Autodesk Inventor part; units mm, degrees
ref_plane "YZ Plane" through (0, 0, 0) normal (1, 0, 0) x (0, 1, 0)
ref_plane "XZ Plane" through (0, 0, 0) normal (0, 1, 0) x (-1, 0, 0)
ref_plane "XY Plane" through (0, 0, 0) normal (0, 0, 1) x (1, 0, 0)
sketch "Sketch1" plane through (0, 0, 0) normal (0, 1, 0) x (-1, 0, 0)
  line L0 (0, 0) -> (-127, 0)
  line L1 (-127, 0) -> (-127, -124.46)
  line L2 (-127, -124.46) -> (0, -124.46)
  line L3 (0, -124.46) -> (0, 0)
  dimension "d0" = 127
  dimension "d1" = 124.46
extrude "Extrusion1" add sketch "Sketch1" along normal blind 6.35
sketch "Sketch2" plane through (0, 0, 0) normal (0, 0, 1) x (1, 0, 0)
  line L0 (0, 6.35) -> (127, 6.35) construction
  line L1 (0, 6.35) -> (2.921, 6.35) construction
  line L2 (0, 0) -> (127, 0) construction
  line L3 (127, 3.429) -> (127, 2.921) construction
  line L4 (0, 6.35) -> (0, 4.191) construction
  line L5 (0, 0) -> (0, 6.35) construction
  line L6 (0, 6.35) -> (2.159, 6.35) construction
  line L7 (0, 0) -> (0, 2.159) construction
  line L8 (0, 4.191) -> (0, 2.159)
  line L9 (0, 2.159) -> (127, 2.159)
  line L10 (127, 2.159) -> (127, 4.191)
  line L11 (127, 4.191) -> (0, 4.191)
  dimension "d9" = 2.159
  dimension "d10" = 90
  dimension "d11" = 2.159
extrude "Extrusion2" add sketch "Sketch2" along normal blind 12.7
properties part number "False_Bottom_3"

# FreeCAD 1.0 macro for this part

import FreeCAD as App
import Part
import Sketcher
Q = App.Units.Quantity

doc = App.newDocument("Part")
body = doc.addObject("PartDesign::Body", "Body")

# Sketch on XZ plane
sketch1 = body.newObject("Sketcher::SketchObject", "Sketch")
sketch1.AttachmentSupport = (doc.getObject("XZ_Plane"), [""])
sketch1.MapMode = "FlatFace"
sketch1.addGeometry(Part.LineSegment(App.Vector(0, -124, 0), App.Vector(0, 0, 0)), False)
sketch1.addGeometry(Part.LineSegment(App.Vector(0, 0, 0), App.Vector(127, 0, 0)), False)
sketch1.addGeometry(Part.LineSegment(App.Vector(127, 0, 0), App.Vector(127, -124, 0)), False)
sketch1.addGeometry(Part.LineSegment(App.Vector(127, -124, 0), App.Vector(0, -124, 0)), False)
sketch1.addConstraint(Sketcher.Constraint("Coincident", 0, 2, 1, 1))
sketch1.addConstraint(Sketcher.Constraint("Coincident", 1, 2, 2, 1))
sketch1.addConstraint(Sketcher.Constraint("Coincident", 2, 2, 3, 1))
sketch1.addConstraint(Sketcher.Constraint("Coincident", 3, 2, 0, 1))
sketch1.addConstraint(Sketcher.Constraint("Vertical", 0))
sketch1.addConstraint(Sketcher.Constraint("Horizontal", 1))
sketch1.addConstraint(Sketcher.Constraint("Vertical", 2))
sketch1.addConstraint(Sketcher.Constraint("Horizontal", 3))
sketch1.addConstraint(Sketcher.Constraint("Coincident", 0, 2, -1, 1))
sketch1.addConstraint(Sketcher.Constraint("DistanceX", 1, 1, 1, 2, Q("5 in")))
sketch1.addConstraint(Sketcher.Constraint("DistanceY", 0, 1, 0, 2, Q("4.9 in")))
pad1 = body.newObject("PartDesign::Pad", "Pad")
pad1.Profile = sketch1
pad1.Length = Q("0.25 in")
pad1.Reversed = True

# Sketch on XY plane
sketch2 = body.newObject("Sketcher::SketchObject", "Sketch001")
sketch2.AttachmentSupport = (doc.getObject("XY_Plane"), [""])
sketch2.MapMode = "FlatFace"
sketch2.addGeometry(Part.LineSegment(App.Vector(127, 4.2, 0), App.Vector(0, 4.2, 0)), False)
sketch2.addGeometry(Part.LineSegment(App.Vector(0, 4.2, 0), App.Vector(0, 2.2, 0)), False)
sketch2.addGeometry(Part.LineSegment(App.Vector(0, 2.2, 0), App.Vector(127, 2.2, 0)), False)
sketch2.addGeometry(Part.LineSegment(App.Vector(127, 2.2, 0), App.Vector(127, 4.2, 0)), False)
sketch2.addConstraint(Sketcher.Constraint("Coincident", 0, 2, 1, 1))
sketch2.addConstraint(Sketcher.Constraint("Coincident", 1, 2, 2, 1))
sketch2.addConstraint(Sketcher.Constraint("Coincident", 2, 2, 3, 1))
sketch2.addConstraint(Sketcher.Constraint("Coincident", 3, 2, 0, 1))
sketch2.addConstraint(Sketcher.Constraint("Horizontal", 0))
sketch2.addConstraint(Sketcher.Constraint("Vertical", 1))
sketch2.addConstraint(Sketcher.Constraint("Horizontal", 2))
sketch2.addConstraint(Sketcher.Constraint("Vertical", 3))
sketch2.addConstraint(Sketcher.Constraint("PointOnObject", 0, 2, -2))
sketch2.addConstraint(Sketcher.Constraint("DistanceX", 0, 2, 0, 1, Q("5 in")))
sketch2.addConstraint(Sketcher.Constraint("DistanceY", -1, 1, 1, 2, Q("0.085 in")))
sketch2.addConstraint(Sketcher.Constraint("DistanceY", 1, 2, 1, 1, Q("0.08 in")))
pad2 = body.newObject("PartDesign::Pad", "Pad001")
pad2.Profile = sketch2
pad2.Length = Q("0.5 in")

doc.recompute()
